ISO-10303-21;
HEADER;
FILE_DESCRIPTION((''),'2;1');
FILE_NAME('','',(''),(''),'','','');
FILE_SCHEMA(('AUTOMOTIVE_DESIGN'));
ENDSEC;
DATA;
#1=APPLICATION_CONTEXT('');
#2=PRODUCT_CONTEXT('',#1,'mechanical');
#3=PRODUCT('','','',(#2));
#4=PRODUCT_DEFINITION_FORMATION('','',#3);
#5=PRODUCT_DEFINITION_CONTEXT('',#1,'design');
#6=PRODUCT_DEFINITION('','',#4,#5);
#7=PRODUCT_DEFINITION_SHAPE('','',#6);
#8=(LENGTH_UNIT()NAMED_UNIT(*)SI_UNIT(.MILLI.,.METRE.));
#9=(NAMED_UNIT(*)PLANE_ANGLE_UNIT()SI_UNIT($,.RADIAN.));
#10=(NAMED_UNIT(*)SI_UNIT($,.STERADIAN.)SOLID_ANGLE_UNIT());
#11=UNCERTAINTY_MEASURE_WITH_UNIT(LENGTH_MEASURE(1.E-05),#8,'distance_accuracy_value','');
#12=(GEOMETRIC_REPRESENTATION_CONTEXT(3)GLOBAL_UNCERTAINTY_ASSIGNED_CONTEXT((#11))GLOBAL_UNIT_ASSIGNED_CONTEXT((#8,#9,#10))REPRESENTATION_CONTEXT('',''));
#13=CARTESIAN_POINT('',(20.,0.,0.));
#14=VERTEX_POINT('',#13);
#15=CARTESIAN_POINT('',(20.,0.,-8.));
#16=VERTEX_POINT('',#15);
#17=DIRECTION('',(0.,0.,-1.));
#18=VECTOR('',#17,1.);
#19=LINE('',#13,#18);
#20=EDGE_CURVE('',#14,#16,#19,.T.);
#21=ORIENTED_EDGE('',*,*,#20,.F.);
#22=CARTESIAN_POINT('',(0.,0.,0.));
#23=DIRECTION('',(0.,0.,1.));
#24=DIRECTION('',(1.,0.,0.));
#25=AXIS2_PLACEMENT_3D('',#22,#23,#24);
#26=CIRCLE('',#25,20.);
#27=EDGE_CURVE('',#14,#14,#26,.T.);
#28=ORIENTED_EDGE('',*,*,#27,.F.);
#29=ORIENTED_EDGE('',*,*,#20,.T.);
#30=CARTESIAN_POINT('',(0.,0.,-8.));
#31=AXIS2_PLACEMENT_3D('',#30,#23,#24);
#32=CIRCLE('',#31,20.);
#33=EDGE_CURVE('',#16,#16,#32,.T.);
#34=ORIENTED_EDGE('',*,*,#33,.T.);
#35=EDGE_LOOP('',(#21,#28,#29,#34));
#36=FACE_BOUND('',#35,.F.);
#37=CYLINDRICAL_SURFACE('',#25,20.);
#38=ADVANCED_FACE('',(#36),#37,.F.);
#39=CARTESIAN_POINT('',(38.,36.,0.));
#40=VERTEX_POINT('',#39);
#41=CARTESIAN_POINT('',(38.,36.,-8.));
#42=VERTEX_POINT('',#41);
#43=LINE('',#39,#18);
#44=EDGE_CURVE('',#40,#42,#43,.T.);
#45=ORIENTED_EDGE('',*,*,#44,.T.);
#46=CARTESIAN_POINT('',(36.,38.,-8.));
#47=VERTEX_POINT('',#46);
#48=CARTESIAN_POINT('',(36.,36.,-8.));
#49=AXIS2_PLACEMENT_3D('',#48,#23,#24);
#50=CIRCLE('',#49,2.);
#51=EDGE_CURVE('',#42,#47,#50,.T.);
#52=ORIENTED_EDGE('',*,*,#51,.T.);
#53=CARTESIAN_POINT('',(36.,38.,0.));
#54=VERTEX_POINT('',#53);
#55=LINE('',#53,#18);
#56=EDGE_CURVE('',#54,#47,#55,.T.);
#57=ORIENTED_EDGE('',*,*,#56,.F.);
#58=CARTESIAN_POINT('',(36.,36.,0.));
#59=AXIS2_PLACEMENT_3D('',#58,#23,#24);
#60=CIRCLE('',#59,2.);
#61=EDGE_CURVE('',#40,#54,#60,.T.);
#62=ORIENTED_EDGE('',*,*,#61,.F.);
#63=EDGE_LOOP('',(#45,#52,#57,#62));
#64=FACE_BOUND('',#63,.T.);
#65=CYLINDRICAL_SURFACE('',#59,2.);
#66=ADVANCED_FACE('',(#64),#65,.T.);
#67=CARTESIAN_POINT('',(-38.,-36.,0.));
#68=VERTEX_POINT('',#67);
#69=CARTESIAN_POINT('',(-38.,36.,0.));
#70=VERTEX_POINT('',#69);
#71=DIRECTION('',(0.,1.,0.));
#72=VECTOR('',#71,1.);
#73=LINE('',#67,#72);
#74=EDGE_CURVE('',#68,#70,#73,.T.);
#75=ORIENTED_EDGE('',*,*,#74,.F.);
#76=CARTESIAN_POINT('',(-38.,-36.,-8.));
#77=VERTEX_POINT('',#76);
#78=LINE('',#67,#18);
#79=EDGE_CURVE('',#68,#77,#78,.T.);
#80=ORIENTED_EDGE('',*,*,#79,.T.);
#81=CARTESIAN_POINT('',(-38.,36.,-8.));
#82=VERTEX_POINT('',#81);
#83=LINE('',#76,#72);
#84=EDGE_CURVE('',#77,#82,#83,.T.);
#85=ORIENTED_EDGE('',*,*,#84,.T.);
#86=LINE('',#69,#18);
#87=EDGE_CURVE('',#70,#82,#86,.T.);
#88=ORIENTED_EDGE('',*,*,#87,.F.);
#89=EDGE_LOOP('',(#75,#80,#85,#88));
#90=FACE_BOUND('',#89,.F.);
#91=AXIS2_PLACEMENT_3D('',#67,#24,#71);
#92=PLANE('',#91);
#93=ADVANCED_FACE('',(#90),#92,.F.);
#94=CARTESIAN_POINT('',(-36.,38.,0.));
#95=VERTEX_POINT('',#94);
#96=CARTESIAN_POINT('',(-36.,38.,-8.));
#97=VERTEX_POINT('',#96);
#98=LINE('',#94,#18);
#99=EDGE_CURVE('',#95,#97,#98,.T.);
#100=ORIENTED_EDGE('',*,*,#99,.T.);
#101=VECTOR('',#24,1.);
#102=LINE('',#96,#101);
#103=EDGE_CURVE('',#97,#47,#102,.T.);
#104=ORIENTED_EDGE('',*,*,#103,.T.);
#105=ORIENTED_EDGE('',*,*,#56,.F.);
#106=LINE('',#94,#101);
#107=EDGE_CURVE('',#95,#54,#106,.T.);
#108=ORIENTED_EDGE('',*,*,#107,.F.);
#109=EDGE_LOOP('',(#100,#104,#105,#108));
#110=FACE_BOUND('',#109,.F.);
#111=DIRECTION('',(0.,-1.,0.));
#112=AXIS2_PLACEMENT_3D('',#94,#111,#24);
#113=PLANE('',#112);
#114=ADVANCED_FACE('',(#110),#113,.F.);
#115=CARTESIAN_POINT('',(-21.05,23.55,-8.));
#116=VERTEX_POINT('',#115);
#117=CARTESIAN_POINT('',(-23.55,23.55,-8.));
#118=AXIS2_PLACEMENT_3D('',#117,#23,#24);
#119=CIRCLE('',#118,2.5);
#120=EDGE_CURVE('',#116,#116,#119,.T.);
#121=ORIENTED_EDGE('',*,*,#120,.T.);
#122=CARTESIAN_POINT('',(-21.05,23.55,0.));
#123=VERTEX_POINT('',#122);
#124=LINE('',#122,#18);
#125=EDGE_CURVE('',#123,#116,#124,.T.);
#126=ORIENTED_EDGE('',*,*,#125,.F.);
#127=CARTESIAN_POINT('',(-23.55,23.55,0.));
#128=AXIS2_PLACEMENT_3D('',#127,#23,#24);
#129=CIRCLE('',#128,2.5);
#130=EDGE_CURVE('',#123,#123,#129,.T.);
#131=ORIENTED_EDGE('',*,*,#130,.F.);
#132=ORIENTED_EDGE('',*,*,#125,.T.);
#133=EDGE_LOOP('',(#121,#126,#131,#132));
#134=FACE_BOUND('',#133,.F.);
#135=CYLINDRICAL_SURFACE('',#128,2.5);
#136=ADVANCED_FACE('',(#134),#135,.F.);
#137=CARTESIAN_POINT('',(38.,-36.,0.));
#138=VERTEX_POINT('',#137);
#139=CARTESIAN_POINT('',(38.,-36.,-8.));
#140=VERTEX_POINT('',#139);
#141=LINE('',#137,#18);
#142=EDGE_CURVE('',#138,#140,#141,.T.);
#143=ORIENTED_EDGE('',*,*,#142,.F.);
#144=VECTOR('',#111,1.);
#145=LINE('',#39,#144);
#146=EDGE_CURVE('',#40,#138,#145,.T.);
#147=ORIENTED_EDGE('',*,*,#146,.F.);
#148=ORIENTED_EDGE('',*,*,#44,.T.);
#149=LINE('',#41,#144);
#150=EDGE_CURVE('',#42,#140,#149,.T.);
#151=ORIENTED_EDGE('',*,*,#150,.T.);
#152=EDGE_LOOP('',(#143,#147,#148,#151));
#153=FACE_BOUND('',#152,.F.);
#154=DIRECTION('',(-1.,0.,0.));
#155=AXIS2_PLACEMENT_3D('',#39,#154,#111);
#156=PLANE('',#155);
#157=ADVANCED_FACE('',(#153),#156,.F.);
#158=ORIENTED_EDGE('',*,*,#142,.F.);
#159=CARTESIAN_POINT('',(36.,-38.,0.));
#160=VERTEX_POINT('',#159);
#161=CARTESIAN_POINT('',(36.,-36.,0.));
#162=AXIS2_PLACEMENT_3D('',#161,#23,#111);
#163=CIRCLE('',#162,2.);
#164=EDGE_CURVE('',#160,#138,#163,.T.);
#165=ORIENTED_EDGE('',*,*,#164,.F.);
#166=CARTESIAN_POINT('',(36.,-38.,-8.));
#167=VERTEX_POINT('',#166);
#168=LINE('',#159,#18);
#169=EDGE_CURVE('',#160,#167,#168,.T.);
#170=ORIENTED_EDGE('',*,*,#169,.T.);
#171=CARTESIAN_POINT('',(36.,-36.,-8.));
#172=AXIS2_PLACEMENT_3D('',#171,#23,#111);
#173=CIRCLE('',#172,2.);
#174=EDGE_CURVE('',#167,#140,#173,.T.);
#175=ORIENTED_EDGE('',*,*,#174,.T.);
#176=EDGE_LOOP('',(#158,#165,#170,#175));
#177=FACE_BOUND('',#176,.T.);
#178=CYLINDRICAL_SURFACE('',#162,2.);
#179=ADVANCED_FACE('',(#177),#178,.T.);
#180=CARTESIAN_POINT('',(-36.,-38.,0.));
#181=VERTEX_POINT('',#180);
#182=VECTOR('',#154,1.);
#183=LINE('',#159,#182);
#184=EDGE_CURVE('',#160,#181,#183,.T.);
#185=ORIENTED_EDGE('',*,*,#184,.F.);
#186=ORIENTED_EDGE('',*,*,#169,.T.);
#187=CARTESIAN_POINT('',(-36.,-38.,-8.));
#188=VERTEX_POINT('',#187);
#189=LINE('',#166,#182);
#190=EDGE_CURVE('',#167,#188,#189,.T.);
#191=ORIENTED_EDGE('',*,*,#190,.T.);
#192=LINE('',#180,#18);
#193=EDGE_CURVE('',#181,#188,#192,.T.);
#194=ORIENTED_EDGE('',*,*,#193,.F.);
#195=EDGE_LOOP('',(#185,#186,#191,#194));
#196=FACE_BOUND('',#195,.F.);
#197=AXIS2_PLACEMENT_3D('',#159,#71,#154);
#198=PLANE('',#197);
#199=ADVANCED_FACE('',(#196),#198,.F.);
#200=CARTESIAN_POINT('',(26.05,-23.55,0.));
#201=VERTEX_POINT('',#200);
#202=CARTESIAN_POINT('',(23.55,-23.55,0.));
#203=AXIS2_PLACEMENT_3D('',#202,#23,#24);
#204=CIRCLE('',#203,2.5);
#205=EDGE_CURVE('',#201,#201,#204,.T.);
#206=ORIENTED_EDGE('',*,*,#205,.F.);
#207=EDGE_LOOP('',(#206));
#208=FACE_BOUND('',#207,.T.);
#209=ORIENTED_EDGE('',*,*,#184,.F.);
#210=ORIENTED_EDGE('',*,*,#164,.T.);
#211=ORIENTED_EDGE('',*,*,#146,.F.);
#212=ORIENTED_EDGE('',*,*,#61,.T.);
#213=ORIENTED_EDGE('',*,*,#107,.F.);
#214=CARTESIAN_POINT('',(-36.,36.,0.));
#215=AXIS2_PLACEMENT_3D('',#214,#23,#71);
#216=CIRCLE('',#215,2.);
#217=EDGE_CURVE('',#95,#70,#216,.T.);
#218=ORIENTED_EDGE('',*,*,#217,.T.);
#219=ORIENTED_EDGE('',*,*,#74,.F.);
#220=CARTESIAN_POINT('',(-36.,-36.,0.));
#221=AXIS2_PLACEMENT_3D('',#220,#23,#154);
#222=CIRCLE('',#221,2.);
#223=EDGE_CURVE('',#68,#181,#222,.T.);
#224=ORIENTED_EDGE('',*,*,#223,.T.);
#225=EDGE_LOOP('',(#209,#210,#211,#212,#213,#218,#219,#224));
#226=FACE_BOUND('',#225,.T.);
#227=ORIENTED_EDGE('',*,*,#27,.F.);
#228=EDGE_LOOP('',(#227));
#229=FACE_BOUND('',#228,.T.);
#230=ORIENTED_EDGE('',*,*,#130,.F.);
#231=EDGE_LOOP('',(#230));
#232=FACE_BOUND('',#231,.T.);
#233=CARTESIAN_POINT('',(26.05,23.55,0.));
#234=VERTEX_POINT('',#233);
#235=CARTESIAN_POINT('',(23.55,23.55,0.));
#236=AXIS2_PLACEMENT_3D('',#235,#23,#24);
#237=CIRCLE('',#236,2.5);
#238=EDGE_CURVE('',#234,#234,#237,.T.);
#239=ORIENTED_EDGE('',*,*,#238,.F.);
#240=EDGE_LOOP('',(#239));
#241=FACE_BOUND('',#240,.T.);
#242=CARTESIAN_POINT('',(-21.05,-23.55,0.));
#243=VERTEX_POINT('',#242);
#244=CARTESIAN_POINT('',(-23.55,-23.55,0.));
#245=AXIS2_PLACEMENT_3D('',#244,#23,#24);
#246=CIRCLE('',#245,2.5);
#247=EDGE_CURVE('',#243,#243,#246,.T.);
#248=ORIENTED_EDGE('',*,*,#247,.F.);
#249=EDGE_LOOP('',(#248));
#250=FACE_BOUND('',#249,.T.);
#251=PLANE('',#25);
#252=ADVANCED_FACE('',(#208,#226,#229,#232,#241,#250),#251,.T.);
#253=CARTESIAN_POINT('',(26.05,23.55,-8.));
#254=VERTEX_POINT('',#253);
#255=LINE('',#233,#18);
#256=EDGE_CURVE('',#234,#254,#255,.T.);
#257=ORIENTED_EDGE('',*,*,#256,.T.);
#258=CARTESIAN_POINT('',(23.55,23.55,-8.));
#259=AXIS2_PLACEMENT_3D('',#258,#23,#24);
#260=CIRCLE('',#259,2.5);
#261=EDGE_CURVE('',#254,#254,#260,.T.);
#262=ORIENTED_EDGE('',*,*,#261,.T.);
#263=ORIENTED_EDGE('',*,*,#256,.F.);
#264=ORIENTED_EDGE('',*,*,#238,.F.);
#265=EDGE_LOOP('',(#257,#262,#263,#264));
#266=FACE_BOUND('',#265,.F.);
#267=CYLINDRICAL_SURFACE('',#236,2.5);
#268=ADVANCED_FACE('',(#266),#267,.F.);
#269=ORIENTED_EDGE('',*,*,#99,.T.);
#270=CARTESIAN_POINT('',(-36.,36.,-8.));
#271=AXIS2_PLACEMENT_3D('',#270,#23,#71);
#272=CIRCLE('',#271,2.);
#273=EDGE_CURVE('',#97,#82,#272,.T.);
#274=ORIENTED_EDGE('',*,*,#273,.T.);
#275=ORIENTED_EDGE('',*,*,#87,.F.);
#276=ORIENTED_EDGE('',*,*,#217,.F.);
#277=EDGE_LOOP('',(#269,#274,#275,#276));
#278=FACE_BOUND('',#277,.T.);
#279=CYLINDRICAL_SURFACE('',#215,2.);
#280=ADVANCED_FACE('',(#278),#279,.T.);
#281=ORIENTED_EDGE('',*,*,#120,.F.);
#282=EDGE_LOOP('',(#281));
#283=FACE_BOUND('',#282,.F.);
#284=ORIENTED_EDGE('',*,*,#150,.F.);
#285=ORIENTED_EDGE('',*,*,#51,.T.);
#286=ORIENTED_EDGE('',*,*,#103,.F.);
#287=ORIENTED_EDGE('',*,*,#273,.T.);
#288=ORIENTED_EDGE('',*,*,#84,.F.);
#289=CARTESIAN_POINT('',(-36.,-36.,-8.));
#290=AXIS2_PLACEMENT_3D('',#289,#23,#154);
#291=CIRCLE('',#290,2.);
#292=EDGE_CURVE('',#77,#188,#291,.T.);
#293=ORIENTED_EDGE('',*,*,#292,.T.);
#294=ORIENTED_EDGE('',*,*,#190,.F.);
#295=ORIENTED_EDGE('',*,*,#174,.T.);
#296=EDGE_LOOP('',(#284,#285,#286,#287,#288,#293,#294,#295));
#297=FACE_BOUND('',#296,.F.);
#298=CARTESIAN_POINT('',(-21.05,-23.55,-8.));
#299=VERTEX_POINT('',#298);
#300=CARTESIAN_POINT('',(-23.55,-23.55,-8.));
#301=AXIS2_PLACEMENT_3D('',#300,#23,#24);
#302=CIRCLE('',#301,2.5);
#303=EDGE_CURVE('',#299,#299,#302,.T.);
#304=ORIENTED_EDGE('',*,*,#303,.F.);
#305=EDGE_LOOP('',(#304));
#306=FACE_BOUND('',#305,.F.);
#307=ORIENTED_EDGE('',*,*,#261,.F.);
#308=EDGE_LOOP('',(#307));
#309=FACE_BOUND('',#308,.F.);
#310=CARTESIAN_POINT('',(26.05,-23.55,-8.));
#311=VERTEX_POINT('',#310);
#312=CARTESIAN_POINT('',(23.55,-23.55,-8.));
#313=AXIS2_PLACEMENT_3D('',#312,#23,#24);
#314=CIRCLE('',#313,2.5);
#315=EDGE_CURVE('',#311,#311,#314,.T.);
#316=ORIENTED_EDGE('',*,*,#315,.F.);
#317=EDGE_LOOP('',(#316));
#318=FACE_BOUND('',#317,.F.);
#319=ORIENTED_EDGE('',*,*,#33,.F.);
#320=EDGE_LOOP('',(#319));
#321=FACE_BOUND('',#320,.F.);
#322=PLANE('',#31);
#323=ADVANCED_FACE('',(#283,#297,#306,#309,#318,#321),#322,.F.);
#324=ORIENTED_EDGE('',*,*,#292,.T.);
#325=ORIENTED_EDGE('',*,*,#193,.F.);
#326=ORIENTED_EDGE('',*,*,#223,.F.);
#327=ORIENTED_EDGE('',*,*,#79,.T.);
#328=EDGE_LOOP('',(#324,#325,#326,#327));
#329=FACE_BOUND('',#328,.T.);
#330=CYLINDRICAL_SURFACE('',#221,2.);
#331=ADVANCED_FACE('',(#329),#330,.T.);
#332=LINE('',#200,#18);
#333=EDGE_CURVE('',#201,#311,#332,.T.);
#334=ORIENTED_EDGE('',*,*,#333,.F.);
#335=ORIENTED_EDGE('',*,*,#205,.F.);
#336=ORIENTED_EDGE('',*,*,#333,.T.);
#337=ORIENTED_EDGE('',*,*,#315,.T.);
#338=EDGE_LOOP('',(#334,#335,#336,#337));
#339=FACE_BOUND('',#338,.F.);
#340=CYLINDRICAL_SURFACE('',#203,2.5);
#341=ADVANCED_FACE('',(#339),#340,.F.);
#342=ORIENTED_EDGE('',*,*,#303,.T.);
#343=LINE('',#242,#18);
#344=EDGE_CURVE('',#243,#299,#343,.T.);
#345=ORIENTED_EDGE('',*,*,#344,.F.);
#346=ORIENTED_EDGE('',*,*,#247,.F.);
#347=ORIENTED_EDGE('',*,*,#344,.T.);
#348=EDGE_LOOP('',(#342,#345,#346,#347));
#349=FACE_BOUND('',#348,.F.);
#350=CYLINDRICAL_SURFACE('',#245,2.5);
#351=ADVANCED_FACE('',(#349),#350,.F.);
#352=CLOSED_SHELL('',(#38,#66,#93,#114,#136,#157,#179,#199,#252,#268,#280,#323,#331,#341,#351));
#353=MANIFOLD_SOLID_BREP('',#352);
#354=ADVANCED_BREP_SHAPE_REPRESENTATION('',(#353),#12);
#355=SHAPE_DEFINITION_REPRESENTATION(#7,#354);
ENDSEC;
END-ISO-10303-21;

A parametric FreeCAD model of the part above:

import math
import FreeCAD as App
import Part
import Sketcher
Q = App.Units.Quantity

doc = App.newDocument("Part")
body = doc.addObject("PartDesign::Body", "Body")

sketch1 = body.newObject("Sketcher::SketchObject", "Sketch")
sketch1.AttachmentSupport = (doc.getObject("XY_Plane"), [""])
sketch1.MapMode = "FlatFace"
sketch1.addGeometry([
    Part.LineSegment(App.Vector(36, 38, 0), App.Vector(-36, 38, 0)),
    Part.ArcOfCircle(Part.Circle(App.Vector(-36, 36, 0), App.Vector(0, 0, 1), 2), math.radians(90), math.radians(180)),
    Part.LineSegment(App.Vector(-38, 36, 0), App.Vector(-38, -36, 0)),
    Part.ArcOfCircle(Part.Circle(App.Vector(-36, -36, 0), App.Vector(0, 0, 1), 2), math.radians(180), math.radians(270)),
    Part.LineSegment(App.Vector(-36, -38, 0), App.Vector(36, -38, 0)),
    Part.ArcOfCircle(Part.Circle(App.Vector(36, -36, 0), App.Vector(0, 0, 1), 2), math.radians(-90), math.radians(0)),
    Part.LineSegment(App.Vector(38, -36, 0), App.Vector(38, 36, 0)),
    Part.ArcOfCircle(Part.Circle(App.Vector(36, 36, 0), App.Vector(0, 0, 1), 2), math.radians(0), math.radians(90)),
    Part.Circle(App.Vector(-23.6, -23.6, 0), App.Vector(0, 0, 1), 2.5),
    Part.Circle(App.Vector(23.6, -23.6, 0), App.Vector(0, 0, 1), 2.5),
    Part.Circle(App.Vector(-23.6, 23.6, 0), App.Vector(0, 0, 1), 2.5),
    Part.Circle(App.Vector(0, 0, 0), App.Vector(0, 0, 1), 20),
    Part.Circle(App.Vector(23.6, 23.6, 0), App.Vector(0, 0, 1), 2.5),
], False)
sketch1.addConstraint([
    Sketcher.Constraint("Tangent", 0, 2, 1, 1),
    Sketcher.Constraint("Tangent", 1, 2, 2, 1),
    Sketcher.Constraint("Tangent", 2, 2, 3, 1),
    Sketcher.Constraint("Tangent", 3, 2, 4, 1),
    Sketcher.Constraint("Tangent", 4, 2, 5, 1),
    Sketcher.Constraint("Tangent", 5, 2, 6, 1),
    Sketcher.Constraint("Tangent", 6, 2, 7, 1),
    Sketcher.Constraint("Tangent", 7, 2, 0, 1),
    Sketcher.Constraint("Horizontal", 0),
    Sketcher.Constraint("Vertical", 2),
    Sketcher.Constraint("Horizontal", 4),
    Sketcher.Constraint("Vertical", 6),
    Sketcher.Constraint("Coincident", 11, 3, -1, 1),
    Sketcher.Constraint("Equal", 1, 3),
    Sketcher.Constraint("Equal", 3, 5),
    Sketcher.Constraint("Equal", 5, 7),
    Sketcher.Constraint("Equal", 8, 9),
    Sketcher.Constraint("Equal", 9, 10),
    Sketcher.Constraint("Equal", 10, 12),
    Sketcher.Constraint("Symmetric", 1, 3, 5, 3, -1, 1),
    Sketcher.Constraint("Symmetric", 9, 3, 10, 3, -1, 1),
    Sketcher.Constraint("Symmetric", 8, 3, 12, 3, -1, 1),
    Sketcher.Constraint("Symmetric", 8, 3, 9, 3, -2),
    Sketcher.Constraint("Equal", 4, 2),
    Sketcher.Constraint("Diameter", 8, Q("5 mm")),
    Sketcher.Constraint("Diameter", 11, Q("40 mm")),
    Sketcher.Constraint("Radius", 1, Q("2 mm")),
    Sketcher.Constraint("DistanceX", 8, 3, 9, 3, Q("47.1 mm")),
    Sketcher.Constraint("DistanceY", 8, 3, 10, 3, Q("47.1 mm")),
    Sketcher.Constraint("DistanceX", 0, 2, 0, 1, Q("72 mm")),
])
pad1 = body.newObject("PartDesign::Pad", "Pad")
pad1.Profile = sketch1
pad1.Length = 8
pad1.Reversed = True

doc.recompute()
